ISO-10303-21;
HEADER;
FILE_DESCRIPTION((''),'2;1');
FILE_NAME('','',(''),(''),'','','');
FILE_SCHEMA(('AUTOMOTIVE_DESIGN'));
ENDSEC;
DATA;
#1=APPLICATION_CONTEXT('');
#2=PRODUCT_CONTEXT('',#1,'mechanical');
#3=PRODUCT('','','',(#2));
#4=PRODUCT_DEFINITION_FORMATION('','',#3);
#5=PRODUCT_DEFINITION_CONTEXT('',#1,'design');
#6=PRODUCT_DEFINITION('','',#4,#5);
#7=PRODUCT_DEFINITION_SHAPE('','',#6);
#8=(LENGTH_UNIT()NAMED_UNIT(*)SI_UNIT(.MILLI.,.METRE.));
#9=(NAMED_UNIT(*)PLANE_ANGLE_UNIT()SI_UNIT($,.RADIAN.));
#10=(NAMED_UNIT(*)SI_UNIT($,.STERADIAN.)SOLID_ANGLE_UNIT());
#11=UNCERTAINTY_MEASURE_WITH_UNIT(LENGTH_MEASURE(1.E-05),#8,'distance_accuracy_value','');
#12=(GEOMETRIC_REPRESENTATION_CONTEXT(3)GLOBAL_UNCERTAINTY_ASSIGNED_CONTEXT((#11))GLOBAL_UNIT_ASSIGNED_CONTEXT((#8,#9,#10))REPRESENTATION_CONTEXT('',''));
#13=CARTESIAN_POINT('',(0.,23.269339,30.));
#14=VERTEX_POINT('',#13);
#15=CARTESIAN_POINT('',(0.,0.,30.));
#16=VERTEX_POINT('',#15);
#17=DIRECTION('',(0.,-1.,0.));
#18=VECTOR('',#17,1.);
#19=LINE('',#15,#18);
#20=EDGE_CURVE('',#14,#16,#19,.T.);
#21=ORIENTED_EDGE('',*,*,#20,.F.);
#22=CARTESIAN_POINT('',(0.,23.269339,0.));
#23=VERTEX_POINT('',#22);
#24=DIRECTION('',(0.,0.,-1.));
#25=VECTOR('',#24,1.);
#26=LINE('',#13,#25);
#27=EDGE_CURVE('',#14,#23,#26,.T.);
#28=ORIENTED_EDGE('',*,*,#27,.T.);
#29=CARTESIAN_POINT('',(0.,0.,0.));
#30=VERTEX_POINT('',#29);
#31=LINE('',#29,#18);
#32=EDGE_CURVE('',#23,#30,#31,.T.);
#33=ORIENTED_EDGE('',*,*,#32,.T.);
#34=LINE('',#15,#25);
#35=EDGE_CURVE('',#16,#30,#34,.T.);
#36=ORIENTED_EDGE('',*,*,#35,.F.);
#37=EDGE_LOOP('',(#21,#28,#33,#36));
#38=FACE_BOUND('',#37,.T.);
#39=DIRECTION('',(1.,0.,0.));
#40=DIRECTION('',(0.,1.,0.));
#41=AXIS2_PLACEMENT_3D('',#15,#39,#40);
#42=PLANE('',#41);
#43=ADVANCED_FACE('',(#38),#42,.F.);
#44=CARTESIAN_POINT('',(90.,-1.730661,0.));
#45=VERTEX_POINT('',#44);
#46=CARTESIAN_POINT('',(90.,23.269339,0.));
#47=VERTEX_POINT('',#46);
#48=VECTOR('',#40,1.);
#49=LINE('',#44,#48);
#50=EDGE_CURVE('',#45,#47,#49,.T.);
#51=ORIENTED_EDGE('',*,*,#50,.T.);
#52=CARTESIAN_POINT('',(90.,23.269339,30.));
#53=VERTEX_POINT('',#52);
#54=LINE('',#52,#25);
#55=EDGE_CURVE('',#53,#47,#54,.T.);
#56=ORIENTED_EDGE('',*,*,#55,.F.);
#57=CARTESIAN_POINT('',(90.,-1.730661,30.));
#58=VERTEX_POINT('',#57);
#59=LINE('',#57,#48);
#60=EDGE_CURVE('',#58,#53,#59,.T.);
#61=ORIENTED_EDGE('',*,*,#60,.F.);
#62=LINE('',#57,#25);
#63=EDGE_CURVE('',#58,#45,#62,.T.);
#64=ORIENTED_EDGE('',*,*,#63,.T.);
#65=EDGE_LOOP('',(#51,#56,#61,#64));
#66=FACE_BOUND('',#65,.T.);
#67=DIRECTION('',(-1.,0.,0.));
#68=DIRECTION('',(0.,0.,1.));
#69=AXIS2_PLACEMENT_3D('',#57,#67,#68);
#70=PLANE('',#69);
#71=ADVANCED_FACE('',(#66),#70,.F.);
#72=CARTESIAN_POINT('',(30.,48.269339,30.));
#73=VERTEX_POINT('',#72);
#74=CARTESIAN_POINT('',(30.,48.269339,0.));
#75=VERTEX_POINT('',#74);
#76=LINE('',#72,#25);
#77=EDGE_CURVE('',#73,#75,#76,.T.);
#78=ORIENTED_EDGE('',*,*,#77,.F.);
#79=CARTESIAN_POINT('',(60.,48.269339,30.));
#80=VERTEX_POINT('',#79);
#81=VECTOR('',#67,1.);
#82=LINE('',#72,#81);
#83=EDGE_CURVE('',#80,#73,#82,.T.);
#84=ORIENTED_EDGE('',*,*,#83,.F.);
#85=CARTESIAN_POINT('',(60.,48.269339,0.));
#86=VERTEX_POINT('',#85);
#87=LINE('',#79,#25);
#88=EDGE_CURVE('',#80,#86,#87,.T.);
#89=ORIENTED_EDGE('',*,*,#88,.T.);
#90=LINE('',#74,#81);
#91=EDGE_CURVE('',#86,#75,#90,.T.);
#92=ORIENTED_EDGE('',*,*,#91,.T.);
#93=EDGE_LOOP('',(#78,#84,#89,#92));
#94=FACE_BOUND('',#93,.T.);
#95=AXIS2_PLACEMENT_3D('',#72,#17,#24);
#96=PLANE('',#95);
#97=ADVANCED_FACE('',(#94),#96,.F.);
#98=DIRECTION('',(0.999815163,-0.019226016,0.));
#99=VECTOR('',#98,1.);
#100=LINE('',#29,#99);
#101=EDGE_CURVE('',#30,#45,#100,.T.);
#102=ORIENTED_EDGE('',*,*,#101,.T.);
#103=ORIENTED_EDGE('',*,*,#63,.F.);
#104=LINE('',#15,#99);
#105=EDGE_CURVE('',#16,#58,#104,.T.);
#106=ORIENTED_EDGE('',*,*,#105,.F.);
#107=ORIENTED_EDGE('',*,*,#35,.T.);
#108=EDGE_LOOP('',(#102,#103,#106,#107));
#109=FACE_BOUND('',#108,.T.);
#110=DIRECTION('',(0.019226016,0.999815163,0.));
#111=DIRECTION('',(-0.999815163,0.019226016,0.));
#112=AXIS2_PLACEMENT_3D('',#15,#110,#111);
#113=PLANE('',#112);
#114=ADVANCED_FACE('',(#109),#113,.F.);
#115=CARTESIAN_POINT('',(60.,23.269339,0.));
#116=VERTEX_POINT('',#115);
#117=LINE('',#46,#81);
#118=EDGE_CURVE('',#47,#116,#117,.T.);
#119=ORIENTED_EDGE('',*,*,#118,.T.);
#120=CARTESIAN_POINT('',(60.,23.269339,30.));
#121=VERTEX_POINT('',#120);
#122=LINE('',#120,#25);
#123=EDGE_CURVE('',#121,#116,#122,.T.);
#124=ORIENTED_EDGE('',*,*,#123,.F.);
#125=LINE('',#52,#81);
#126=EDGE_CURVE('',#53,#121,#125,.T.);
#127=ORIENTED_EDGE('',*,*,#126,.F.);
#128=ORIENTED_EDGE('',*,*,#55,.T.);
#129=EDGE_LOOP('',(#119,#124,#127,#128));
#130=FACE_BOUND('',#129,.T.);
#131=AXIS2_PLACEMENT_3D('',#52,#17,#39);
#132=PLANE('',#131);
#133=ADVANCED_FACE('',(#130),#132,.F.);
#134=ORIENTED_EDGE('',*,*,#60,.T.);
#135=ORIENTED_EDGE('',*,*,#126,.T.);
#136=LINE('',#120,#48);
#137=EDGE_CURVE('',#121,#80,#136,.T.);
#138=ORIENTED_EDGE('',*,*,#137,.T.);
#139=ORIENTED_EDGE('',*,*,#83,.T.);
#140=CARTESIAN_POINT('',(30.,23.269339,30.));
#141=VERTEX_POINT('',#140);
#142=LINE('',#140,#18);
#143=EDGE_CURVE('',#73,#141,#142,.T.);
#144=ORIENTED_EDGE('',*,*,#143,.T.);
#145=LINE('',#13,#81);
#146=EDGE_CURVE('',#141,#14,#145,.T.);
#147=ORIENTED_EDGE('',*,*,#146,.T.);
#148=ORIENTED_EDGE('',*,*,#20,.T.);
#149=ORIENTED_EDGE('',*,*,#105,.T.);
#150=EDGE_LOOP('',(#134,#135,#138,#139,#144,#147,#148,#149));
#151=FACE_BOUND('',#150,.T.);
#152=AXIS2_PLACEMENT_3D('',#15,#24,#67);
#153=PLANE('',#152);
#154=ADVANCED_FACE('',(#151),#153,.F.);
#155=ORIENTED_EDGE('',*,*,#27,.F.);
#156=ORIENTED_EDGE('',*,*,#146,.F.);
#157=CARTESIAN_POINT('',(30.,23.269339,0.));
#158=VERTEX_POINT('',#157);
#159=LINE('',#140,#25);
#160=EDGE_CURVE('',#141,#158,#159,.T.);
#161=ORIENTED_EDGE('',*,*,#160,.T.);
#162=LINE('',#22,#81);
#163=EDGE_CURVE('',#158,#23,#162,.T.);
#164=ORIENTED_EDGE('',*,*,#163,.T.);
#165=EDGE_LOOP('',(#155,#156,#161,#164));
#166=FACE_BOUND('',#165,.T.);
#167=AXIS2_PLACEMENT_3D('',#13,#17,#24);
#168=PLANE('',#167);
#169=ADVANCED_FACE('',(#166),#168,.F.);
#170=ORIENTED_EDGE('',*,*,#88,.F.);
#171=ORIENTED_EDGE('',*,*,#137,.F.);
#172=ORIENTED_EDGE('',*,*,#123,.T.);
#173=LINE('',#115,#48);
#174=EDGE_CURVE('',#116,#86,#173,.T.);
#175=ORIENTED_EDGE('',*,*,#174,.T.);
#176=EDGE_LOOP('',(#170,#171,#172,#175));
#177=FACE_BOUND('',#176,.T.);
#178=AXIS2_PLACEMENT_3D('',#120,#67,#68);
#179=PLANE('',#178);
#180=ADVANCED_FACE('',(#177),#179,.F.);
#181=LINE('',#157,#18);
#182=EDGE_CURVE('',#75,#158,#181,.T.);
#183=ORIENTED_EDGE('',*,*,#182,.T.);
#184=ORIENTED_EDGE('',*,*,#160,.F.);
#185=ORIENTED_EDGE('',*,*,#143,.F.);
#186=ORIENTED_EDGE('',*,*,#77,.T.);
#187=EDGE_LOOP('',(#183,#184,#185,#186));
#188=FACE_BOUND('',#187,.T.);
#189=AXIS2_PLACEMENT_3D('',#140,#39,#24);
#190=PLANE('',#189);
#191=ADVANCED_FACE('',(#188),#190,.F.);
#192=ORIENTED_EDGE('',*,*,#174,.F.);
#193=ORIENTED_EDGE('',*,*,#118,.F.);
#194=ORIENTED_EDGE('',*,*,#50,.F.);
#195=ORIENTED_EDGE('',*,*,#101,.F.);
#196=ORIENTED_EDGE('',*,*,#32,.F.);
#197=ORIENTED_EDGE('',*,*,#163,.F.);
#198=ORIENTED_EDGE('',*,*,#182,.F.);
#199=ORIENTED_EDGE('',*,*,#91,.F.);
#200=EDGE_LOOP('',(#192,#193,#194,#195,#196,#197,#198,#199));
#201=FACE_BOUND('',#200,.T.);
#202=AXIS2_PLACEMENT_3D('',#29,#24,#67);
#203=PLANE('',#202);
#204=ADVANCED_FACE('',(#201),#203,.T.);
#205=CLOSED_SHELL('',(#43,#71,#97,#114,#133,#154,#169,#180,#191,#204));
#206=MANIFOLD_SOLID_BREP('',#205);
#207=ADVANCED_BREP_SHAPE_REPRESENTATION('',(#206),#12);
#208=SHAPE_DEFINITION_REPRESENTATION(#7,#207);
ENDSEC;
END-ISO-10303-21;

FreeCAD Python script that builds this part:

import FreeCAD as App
import Part
import Sketcher
from FreeCAD import Vector
Q = App.Units.Quantity

doc = App.newDocument("Part")
body = doc.addObject("PartDesign::Body", "Body")

sketch1 = doc.addObject("Sketcher::SketchObject", "Sketch")
body.addObject(sketch1)
sketch1.AttachmentSupport = (doc.XY_Plane, [""])
sketch1.MapMode = "FlatFace"
sketch1.addGeometry([
    Part.LineSegment(Vector(0, 0, 0), Vector(90, -1.730661, 0)),
    Part.LineSegment(Vector(90, -1.730661, 0), Vector(90, 23.269339, 0)),
    Part.LineSegment(Vector(90, 23.269339, 0), Vector(60, 23.269339, 0)),
    Part.LineSegment(Vector(60, 23.269339, 0), Vector(60, 48.269339, 0)),
    Part.LineSegment(Vector(60, 48.269339, 0), Vector(30, 48.269339, 0)),
    Part.LineSegment(Vector(30, 48.269339, 0), Vector(30, 23.269339, 0)),
    Part.LineSegment(Vector(30, 23.269339, 0), Vector(0, 23.269339, 0)),
    Part.LineSegment(Vector(0, 23.269339, 0), Vector(0, 0, 0)),
], False)
sketch1.addConstraint([
    Sketcher.Constraint("Coincident", 0, 2, 1, 1),
    Sketcher.Constraint("Coincident", 1, 2, 2, 1),
    Sketcher.Constraint("Coincident", 2, 2, 3, 1),
    Sketcher.Constraint("Coincident", 3, 2, 4, 1),
    Sketcher.Constraint("Coincident", 4, 2, 5, 1),
    Sketcher.Constraint("Coincident", 5, 2, 6, 1),
    Sketcher.Constraint("Coincident", 6, 2, 7, 1),
    Sketcher.Constraint("Coincident", 7, 2, 0, 1),
    Sketcher.Constraint("Vertical", 1),
    Sketcher.Constraint("Horizontal", 2),
    Sketcher.Constraint("Vertical", 3),
    Sketcher.Constraint("Horizontal", 4),
    Sketcher.Constraint("Vertical", 5),
    Sketcher.Constraint("Horizontal", 6),
    Sketcher.Constraint("Vertical", 7),
    Sketcher.Constraint("Coincident", 7, 2, -1, 1),
    Sketcher.Constraint("Horizontal", 2, 2, 5, 2),
    Sketcher.Constraint("Equal", 2, 4),
    Sketcher.Constraint("Equal", 4, 6),
    Sketcher.Constraint("Equal", 1, 3),
    Sketcher.Constraint("DistanceX", 2, 2, 2, 1, Q("30 mm")),
    Sketcher.Constraint("DistanceY", 1, 1, 1, 2, Q("25 mm")),
    Sketcher.Constraint("DistanceY", 7, 2, 7, 1, Q("23.269339 mm")),
])
pad1 = doc.addObject("PartDesign::Pad", "Pad")
body.addObject(pad1)
pad1.Profile = sketch1
pad1.Length = 30

doc.recompute()
